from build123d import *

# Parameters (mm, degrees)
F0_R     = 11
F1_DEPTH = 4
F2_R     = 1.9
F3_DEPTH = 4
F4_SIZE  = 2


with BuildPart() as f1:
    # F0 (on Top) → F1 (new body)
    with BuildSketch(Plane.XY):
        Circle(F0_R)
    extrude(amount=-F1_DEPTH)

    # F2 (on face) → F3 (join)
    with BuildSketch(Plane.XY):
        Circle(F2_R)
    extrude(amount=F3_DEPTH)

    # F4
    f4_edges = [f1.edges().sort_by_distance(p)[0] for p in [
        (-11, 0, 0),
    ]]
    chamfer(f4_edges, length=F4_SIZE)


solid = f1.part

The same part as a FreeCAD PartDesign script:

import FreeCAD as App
import Part
import Sketcher
from FreeCAD import Vector


def edges_at(feature, points):
    """Names of the edges that pass closest to the given points."""
    edges = feature.Shape.Edges
    near = lambda p: min(range(len(edges)), key=lambda i: edges[i].distToShape(Part.Vertex(*p))[0])
    return sorted({f"Edge{near(p) + 1}" for p in points})

doc = App.newDocument("Part")
body = doc.addObject("PartDesign::Body", "Body")

sketch1 = doc.addObject("Sketcher::SketchObject", "Sketch")
body.addObject(sketch1)
sketch1.AttachmentSupport = (doc.XY_Plane, [""])
sketch1.MapMode = "FlatFace"
sketch1.addGeometry(Part.Circle(Vector(0, 0, 0), Vector(0, 0, 1), 11), False)
sketch1.addConstraint([
    Sketcher.Constraint("Coincident", 0, 3, -1, 1),
    Sketcher.Constraint("Diameter", 0, 22.0),
])
pad1 = doc.addObject("PartDesign::Pad", "Pad")
body.addObject(pad1)
pad1.Profile = sketch1
pad1.Length = 4
pad1.Reversed = True

sketch2 = doc.addObject("Sketcher::SketchObject", "Sketch001")
body.addObject(sketch2)
sketch2.AttachmentSupport = (doc.XY_Plane, [""])
sketch2.MapMode = "FlatFace"
sketch2.addGeometry(Part.Circle(Vector(0, 0, 0), Vector(0, 0, 1), 1.9), False)
sketch2.addConstraint([
    Sketcher.Constraint("Coincident", 0, 3, -1, 1),
    Sketcher.Constraint("Diameter", 0, 3.8),
])
pad2 = doc.addObject("PartDesign::Pad", "Pad001")
body.addObject(pad2)
pad2.Profile = sketch2
pad2.Length = 4
doc.recompute()

chamfer = doc.addObject("PartDesign::Chamfer", "Chamfer")
body.addObject(chamfer)
chamfer.Base = (pad2, edges_at(pad2, [(-11, 0, 0)]))
chamfer.Size = 2

doc.recompute()
